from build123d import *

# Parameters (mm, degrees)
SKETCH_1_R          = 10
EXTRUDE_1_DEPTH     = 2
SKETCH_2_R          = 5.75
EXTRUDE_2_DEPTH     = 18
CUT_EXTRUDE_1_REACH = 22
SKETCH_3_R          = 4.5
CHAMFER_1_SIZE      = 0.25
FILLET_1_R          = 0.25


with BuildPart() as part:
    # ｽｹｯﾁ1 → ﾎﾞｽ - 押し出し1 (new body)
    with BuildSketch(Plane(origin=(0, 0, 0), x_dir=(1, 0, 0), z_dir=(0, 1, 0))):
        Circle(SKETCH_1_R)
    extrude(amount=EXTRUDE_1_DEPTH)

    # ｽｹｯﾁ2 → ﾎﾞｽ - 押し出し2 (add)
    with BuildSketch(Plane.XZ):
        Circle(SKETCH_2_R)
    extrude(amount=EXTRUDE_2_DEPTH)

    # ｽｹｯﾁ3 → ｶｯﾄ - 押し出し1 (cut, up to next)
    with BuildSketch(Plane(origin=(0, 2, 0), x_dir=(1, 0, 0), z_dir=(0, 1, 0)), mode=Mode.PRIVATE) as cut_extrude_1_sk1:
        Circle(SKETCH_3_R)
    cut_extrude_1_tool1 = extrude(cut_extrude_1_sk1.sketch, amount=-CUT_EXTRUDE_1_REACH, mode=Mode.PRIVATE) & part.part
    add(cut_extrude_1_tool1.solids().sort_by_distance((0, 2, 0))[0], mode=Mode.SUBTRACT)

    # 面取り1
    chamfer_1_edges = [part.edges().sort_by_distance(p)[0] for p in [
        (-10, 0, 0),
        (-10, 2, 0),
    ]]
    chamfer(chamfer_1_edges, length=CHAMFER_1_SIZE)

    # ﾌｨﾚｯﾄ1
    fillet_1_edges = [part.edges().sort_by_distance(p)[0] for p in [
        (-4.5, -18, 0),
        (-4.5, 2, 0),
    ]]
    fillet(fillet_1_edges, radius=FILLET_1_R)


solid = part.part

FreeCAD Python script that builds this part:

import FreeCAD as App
import Part
import Sketcher
from FreeCAD import Vector


def edges_at(feature, points):
    """Names of the edges that pass closest to the given points."""
    edges = feature.Shape.Edges
    near = lambda p: min(range(len(edges)), key=lambda i: edges[i].distToShape(Part.Vertex(*p))[0])
    return sorted({f"Edge{near(p) + 1}" for p in points})

doc = App.newDocument("Part")
body = doc.addObject("PartDesign::Body", "Body")

sketch1 = body.newObject("Sketcher::SketchObject", "Sketch")
sketch1.AttachmentSupport = (doc.getObject("XZ_Plane"), [""])
sketch1.MapMode = "FlatFace"
sketch1.addGeometry(Part.Circle(Vector(0, 0, 0), Vector(0, 0, 1), 10), False)
sketch1.addConstraint([
    Sketcher.Constraint("Coincident", 0, 3, -1, 1),
    Sketcher.Constraint("Diameter", 0, 20.0),
])
pad1 = body.newObject("PartDesign::Pad", "Pad")
pad1.Profile = sketch1
pad1.Length = 2
pad1.Reversed = True

sketch2 = body.newObject("Sketcher::SketchObject", "Sketch001")
sketch2.AttachmentSupport = (doc.getObject("XZ_Plane"), [""])
sketch2.MapMode = "FlatFace"
sketch2.addGeometry(Part.Circle(Vector(0, 0, 0), Vector(0, 0, 1), 6), False)
sketch2.addConstraint([
    Sketcher.Constraint("Coincident", 0, 3, -1, 1),
    Sketcher.Constraint("Diameter", 0, 11.5),
])
pad2 = body.newObject("PartDesign::Pad", "Pad001")
pad2.Profile = sketch2
pad2.Length = 18

sketch3 = body.newObject("Sketcher::SketchObject", "Sketch002")
sketch3.AttachmentSupport = (doc.getObject("XZ_Plane"), [""])
sketch3.MapMode = "FlatFace"
sketch3.AttachmentOffset = App.Placement(Vector(0, 0, -2), App.Rotation())
sketch3.addGeometry(Part.Circle(Vector(0, 0, 0), Vector(0, 0, 1), 4.5), False)
sketch3.addConstraint([
    Sketcher.Constraint("Coincident", 0, 3, -1, 1),
    Sketcher.Constraint("Diameter", 0, 9.0),
])
pocket1 = body.newObject("PartDesign::Pocket", "Pocket")
pocket1.Profile = sketch3
pocket1.Type = "UpToFirst"
pocket1.Reversed = True
doc.recompute()

chamfer = body.newObject("PartDesign::Chamfer", "Chamfer")
chamfer.Base = (pocket1, edges_at(pocket1, [(-10, 0, 0), (-10, 2, 0)]))
chamfer.Size = 0.25
doc.recompute()

fillet = body.newObject("PartDesign::Fillet", "Fillet")
fillet.Base = (chamfer, edges_at(chamfer, [(-4.5, -18, 0), (-4.5, 2, 0)]))
fillet.Radius = 0.25

doc.recompute()
